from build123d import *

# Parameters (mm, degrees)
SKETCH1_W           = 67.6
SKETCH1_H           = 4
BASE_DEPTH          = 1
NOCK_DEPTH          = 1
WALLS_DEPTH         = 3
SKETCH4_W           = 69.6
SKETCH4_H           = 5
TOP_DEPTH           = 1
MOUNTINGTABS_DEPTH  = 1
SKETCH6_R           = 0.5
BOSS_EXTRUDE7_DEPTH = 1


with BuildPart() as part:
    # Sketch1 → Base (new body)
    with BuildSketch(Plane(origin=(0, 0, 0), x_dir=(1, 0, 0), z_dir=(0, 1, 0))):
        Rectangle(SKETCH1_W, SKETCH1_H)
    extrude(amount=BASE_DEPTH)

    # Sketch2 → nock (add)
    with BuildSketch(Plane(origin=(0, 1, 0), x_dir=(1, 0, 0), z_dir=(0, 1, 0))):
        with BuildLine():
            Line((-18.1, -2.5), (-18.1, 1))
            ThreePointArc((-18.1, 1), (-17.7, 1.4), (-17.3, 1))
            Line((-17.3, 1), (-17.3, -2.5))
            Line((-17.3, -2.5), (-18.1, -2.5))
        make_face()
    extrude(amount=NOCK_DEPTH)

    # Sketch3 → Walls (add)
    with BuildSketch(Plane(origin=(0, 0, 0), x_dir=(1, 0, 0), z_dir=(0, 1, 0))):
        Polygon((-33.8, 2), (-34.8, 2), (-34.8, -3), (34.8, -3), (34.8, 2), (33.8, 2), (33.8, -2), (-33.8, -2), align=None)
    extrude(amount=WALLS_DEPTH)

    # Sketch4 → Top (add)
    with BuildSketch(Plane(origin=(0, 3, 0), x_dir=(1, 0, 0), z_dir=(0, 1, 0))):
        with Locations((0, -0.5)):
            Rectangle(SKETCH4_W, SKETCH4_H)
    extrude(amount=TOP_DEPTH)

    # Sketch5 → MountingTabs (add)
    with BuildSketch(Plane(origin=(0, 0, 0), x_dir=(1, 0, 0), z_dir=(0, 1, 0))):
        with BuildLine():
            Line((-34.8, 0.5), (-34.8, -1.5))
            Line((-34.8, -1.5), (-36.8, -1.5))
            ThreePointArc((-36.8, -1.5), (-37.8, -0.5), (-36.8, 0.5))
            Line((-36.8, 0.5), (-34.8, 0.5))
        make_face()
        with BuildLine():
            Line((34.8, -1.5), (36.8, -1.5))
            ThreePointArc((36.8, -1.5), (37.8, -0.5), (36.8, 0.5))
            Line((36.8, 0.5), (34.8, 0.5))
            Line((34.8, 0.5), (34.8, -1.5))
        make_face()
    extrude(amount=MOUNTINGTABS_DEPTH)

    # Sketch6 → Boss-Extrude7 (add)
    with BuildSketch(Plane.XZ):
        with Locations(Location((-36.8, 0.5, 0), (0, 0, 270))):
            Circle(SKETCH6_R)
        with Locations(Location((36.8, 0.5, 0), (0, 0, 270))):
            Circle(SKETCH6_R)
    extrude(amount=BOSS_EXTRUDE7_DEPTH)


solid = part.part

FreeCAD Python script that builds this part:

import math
import FreeCAD as App
import Part
import Sketcher


def add_polygon(sketch, points):
    """Adds a closed chain of lines whose ends are joined by coincident constraints."""
    first, n = sketch.GeometryCount, len(points)
    for a, b in zip(points, points[1:] + points[:1]):
        sketch.addGeometry(Part.LineSegment(App.Vector(*a, 0), App.Vector(*b, 0)), False)
    for i in range(n):
        sketch.addConstraint(Sketcher.Constraint("Coincident", first + i, 2, first + (i + 1) % n, 1))

doc = App.newDocument("Part")
params = doc.addObject("Spreadsheet::Sheet", "Params")
for row, (alias, value) in enumerate([
    ("sketch1_height", "4 mm"),
    ("sketch1_width", "67.6 mm"),
    ("pad1_length", "1 mm"),
    ("sketch2_radius", "0.4 mm"),
    ("sketch2_height", "3.5 mm"),
    ("pad2_length", "1 mm"),
    ("sketch3_width", "1 mm"),
    ("sketch3_height", "5 mm"),
    ("sketch3_height2", "4 mm"),
    ("sketch3_width2", "69.6 mm"),
    ("pad3_length", "3 mm"),
    ("sketch4_height", "5 mm"),
    ("sketch4_width", "69.6 mm"),
    ("pad4_length", "1 mm"),
    ("sketch5_radius", "1 mm"),
    ("pad5_length", "1 mm"),
    ("sketch6_diameter", "1 mm"),
    ("pad6_length", "1 mm"),
], start=1):
    params.set(f"A{row}", alias)
    params.set(f"B{row}", "=" + value)
    params.setAlias(f"B{row}", alias)

body = doc.addObject("PartDesign::Body", "Body")

# Sketch on XZ plane
sketch1 = doc.addObject("Sketcher::SketchObject", "Sketch")
body.addObject(sketch1)
sketch1.AttachmentSupport = (doc.XZ_Plane, [""])
sketch1.MapMode = "FlatFace"
add_polygon(sketch1, [(-33.8, -2), (-33.8, 2), (33.8, 2), (33.8, -2)])  # lines 0-3
sketch1.addConstraint([
    Sketcher.Constraint("Vertical", 0),
    Sketcher.Constraint("Horizontal", 1),
    Sketcher.Constraint("Vertical", 2),
    Sketcher.Constraint("Horizontal", 3),
    Sketcher.Constraint("Symmetric", 0, 2, 2, 2, -1, 1),
    Sketcher.Constraint("DistanceY", 0, 1, 0, 2, 4.0),
    Sketcher.Constraint("DistanceX", 1, 1, 1, 2, 67.6),
])
sketch1.setExpression("Constraints[9]", "Params.sketch1_height")
sketch1.setExpression("Constraints[10]", "Params.sketch1_width")
pad1 = doc.addObject("PartDesign::Pad", "Pad")
body.addObject(pad1)
pad1.Profile = sketch1
pad1.setExpression("Length", "Params.pad1_length")
pad1.Reversed = True

# Sketch on XZ plane
sketch2 = doc.addObject("Sketcher::SketchObject", "Sketch001")
body.addObject(sketch2)
sketch2.AttachmentSupport = (doc.XZ_Plane, [""])
sketch2.MapMode = "FlatFace"
sketch2.AttachmentOffset = App.Placement(App.Vector(0, 0, -1), App.Rotation())
sketch2.addGeometry([
    Part.LineSegment(App.Vector(-18.1, -1, 0), App.Vector(-18.1, 2.5, 0)),
    Part.LineSegment(App.Vector(-18.1, 2.5, 0), App.Vector(-17.3, 2.5, 0)),
    Part.LineSegment(App.Vector(-17.3, 2.5, 0), App.Vector(-17.3, -1, 0)),
    Part.ArcOfCircle(Part.Circle(App.Vector(-17.7, -1, 0), App.Vector(0, 0, 1), 0.4), math.radians(180), math.radians(360)),
], False)
sketch2.addConstraint([
    Sketcher.Constraint("Coincident", 0, 2, 1, 1),
    Sketcher.Constraint("Coincident", 1, 2, 2, 1),
    Sketcher.Constraint("Tangent", 2, 2, 3, 2),
    Sketcher.Constraint("Tangent", 3, 1, 0, 1),
    Sketcher.Constraint("Vertical", 0),
    Sketcher.Constraint("Horizontal", 1),
    Sketcher.Constraint("Vertical", 2),
    Sketcher.Constraint("Radius", 3, 0.4),
    Sketcher.Constraint("DistanceY", 0, 1, 0, 2, 3.5),
    Sketcher.Constraint("DistanceY", 3, 3, -1, 1, 1.0),
    Sketcher.Constraint("DistanceX", 3, 3, -1, 1, 17.7),
])
sketch2.setExpression("Constraints[7]", "Params.sketch2_radius")
sketch2.setExpression("Constraints[8]", "Params.sketch2_height")
pad2 = doc.addObject("PartDesign::Pad", "Pad001")
body.addObject(pad2)
pad2.Profile = sketch2
pad2.setExpression("Length", "Params.pad2_length")
pad2.Reversed = True

# Sketch on XZ plane
sketch3 = doc.addObject("Sketcher::SketchObject", "Sketch002")
body.addObject(sketch3)
sketch3.AttachmentSupport = (doc.XZ_Plane, [""])
sketch3.MapMode = "FlatFace"
add_polygon(sketch3, [(-33.8, -2), (-34.8, -2), (-34.8, 3), (34.8, 3), (34.8, -2), (33.8, -2), (33.8, 2), (-33.8, 2)])  # lines 0-7
sketch3.addConstraint([
    Sketcher.Constraint("Horizontal", 0),
    Sketcher.Constraint("Vertical", 1),
    Sketcher.Constraint("Horizontal", 2),
    Sketcher.Constraint("Vertical", 3),
    Sketcher.Constraint("Horizontal", 4),
    Sketcher.Constraint("Vertical", 5),
    Sketcher.Constraint("Horizontal", 6),
    Sketcher.Constraint("Vertical", 7),
    Sketcher.Constraint("Symmetric", 4, 2, 6, 2, -1, 1),
    Sketcher.Constraint("Symmetric", 0, 2, 3, 2, -2),
    Sketcher.Constraint("DistanceX", 0, 2, 0, 1, 1.0),
    Sketcher.Constraint("DistanceY", 1, 1, 1, 2, 5.0),
    Sketcher.Constraint("DistanceY", 5, 1, 5, 2, 4.0),
    Sketcher.Constraint("DistanceX", 2, 1, 2, 2, 69.6),
])
sketch3.setExpression("Constraints[18]", "Params.sketch3_width")
sketch3.setExpression("Constraints[19]", "Params.sketch3_height")
sketch3.setExpression("Constraints[20]", "Params.sketch3_height2")
sketch3.setExpression("Constraints[21]", "Params.sketch3_width2")
pad3 = doc.addObject("PartDesign::Pad", "Pad002")
body.addObject(pad3)
pad3.Profile = sketch3
pad3.setExpression("Length", "Params.pad3_length")
pad3.Reversed = True

# Sketch on XZ plane
sketch4 = doc.addObject("Sketcher::SketchObject", "Sketch003")
body.addObject(sketch4)
sketch4.AttachmentSupport = (doc.XZ_Plane, [""])
sketch4.MapMode = "FlatFace"
sketch4.AttachmentOffset = App.Placement(App.Vector(0, 0, -3), App.Rotation())
add_polygon(sketch4, [(-35, -2), (-35, 3), (35, 3), (35, -2)])  # lines 0-3
sketch4.addConstraint([
    Sketcher.Constraint("Vertical", 0),
    Sketcher.Constraint("Horizontal", 1),
    Sketcher.Constraint("Vertical", 2),
    Sketcher.Constraint("Horizontal", 3),
    Sketcher.Constraint("DistanceY", 0, 1, 0, 2, 5.0),
    Sketcher.Constraint("DistanceX", 1, 1, 1, 2, 69.6),
    Sketcher.Constraint("DistanceY", -1, 1, 0, 2, 3.0),
    Sketcher.Constraint("DistanceX", 0, 2, -1, 1, 34.8),
])
sketch4.setExpression("Constraints[8]", "Params.sketch4_height")
sketch4.setExpression("Constraints[9]", "Params.sketch4_width")
pad4 = doc.addObject("PartDesign::Pad", "Pad003")
body.addObject(pad4)
pad4.Profile = sketch4
pad4.setExpression("Length", "Params.pad4_length")
pad4.Reversed = True

# Sketch on XZ plane
sketch5 = doc.addObject("Sketcher::SketchObject", "Sketch004")
body.addObject(sketch5)
sketch5.AttachmentSupport = (doc.XZ_Plane, [""])
sketch5.MapMode = "FlatFace"
sketch5.addGeometry([
    Part.LineSegment(App.Vector(-34.8, 1.5, 0), App.Vector(-34.8, -0.5, 0)),  # 0
    Part.LineSegment(App.Vector(-34.8, -0.5, 0), App.Vector(-36.8, -0.5, 0)),  # 1
    Part.ArcOfCircle(Part.Circle(App.Vector(-36.8, 0.5, 0), App.Vector(0, 0, 1), 1), math.radians(90), math.radians(270)),  # 2
    Part.LineSegment(App.Vector(-36.8, 1.5, 0), App.Vector(-34.8, 1.5, 0)),  # 3
    Part.LineSegment(App.Vector(34.8, 1.5, 0), App.Vector(36.8, 1.5, 0)),  # 4
    Part.ArcOfCircle(Part.Circle(App.Vector(36.8, 0.5, 0), App.Vector(0, 0, 1), 1), math.radians(-90), math.radians(90)),  # 5
    Part.LineSegment(App.Vector(36.8, -0.5, 0), App.Vector(34.8, -0.5, 0)),  # 6
    Part.LineSegment(App.Vector(34.8, -0.5, 0), App.Vector(34.8, 1.5, 0)),  # 7
], False)
sketch5.addConstraint([
    Sketcher.Constraint("Coincident", 0, 2, 1, 1),
    Sketcher.Constraint("Tangent", 1, 2, 2, 2),
    Sketcher.Constraint("Tangent", 2, 1, 3, 1),
    Sketcher.Constraint("Coincident", 3, 2, 0, 1),
    Sketcher.Constraint("Tangent", 4, 2, 5, 2),
    Sketcher.Constraint("Tangent", 5, 1, 6, 1),
    Sketcher.Constraint("Coincident", 6, 2, 7, 1),
    Sketcher.Constraint("Coincident", 7, 2, 4, 1),
    Sketcher.Constraint("Vertical", 0),
    Sketcher.Constraint("Horizontal", 1),
    Sketcher.Constraint("Horizontal", 3),
    Sketcher.Constraint("Horizontal", 4),
    Sketcher.Constraint("Horizontal", 6),
    Sketcher.Constraint("Vertical", 7),
    Sketcher.Constraint("Equal", 2, 5),
    Sketcher.Constraint("Symmetric", 2, 3, 5, 3, -2),
    Sketcher.Constraint("Equal", 3, 4),
    Sketcher.Constraint("Equal", 6, 0),
    Sketcher.Constraint("Radius", 2, 1.0),
    Sketcher.Constraint("DistanceX", 2, 3, -1, 1, 36.8),
    Sketcher.Constraint("DistanceY", -1, 1, 2, 3, 0.5),
])
sketch5.setExpression("Constraints[18]", "Params.sketch5_radius")
pad5 = doc.addObject("PartDesign::Pad", "Pad004")
body.addObject(pad5)
pad5.Profile = sketch5
pad5.setExpression("Length", "Params.pad5_length")
pad5.Reversed = True

# Sketch on XZ plane
sketch6 = doc.addObject("Sketcher::SketchObject", "Sketch005")
body.addObject(sketch6)
sketch6.AttachmentSupport = (doc.XZ_Plane, [""])
sketch6.MapMode = "FlatFace"
sketch6.addGeometry([
    Part.Circle(App.Vector(-36.8, 0.5, 0), App.Vector(0, 0, 1), 0.5),
    Part.Circle(App.Vector(36.8, 0.5, 0), App.Vector(0, 0, 1), 0.5),
], False)
sketch6.addConstraint([
    Sketcher.Constraint("Equal", 0, 1),
    Sketcher.Constraint("Symmetric", 0, 3, 1, 3, -2),
    Sketcher.Constraint("Diameter", 0, 1.0),
    Sketcher.Constraint("DistanceX", 0, 3, -1, 1, 36.8),
    Sketcher.Constraint("DistanceY", -1, 1, 0, 3, 0.5),
])
sketch6.setExpression("Constraints[2]", "Params.sketch6_diameter")
pad6 = doc.addObject("PartDesign::Pad", "Pad005")
body.addObject(pad6)
pad6.Profile = sketch6
pad6.setExpression("Length", "Params.pad6_length")

doc.recompute()
